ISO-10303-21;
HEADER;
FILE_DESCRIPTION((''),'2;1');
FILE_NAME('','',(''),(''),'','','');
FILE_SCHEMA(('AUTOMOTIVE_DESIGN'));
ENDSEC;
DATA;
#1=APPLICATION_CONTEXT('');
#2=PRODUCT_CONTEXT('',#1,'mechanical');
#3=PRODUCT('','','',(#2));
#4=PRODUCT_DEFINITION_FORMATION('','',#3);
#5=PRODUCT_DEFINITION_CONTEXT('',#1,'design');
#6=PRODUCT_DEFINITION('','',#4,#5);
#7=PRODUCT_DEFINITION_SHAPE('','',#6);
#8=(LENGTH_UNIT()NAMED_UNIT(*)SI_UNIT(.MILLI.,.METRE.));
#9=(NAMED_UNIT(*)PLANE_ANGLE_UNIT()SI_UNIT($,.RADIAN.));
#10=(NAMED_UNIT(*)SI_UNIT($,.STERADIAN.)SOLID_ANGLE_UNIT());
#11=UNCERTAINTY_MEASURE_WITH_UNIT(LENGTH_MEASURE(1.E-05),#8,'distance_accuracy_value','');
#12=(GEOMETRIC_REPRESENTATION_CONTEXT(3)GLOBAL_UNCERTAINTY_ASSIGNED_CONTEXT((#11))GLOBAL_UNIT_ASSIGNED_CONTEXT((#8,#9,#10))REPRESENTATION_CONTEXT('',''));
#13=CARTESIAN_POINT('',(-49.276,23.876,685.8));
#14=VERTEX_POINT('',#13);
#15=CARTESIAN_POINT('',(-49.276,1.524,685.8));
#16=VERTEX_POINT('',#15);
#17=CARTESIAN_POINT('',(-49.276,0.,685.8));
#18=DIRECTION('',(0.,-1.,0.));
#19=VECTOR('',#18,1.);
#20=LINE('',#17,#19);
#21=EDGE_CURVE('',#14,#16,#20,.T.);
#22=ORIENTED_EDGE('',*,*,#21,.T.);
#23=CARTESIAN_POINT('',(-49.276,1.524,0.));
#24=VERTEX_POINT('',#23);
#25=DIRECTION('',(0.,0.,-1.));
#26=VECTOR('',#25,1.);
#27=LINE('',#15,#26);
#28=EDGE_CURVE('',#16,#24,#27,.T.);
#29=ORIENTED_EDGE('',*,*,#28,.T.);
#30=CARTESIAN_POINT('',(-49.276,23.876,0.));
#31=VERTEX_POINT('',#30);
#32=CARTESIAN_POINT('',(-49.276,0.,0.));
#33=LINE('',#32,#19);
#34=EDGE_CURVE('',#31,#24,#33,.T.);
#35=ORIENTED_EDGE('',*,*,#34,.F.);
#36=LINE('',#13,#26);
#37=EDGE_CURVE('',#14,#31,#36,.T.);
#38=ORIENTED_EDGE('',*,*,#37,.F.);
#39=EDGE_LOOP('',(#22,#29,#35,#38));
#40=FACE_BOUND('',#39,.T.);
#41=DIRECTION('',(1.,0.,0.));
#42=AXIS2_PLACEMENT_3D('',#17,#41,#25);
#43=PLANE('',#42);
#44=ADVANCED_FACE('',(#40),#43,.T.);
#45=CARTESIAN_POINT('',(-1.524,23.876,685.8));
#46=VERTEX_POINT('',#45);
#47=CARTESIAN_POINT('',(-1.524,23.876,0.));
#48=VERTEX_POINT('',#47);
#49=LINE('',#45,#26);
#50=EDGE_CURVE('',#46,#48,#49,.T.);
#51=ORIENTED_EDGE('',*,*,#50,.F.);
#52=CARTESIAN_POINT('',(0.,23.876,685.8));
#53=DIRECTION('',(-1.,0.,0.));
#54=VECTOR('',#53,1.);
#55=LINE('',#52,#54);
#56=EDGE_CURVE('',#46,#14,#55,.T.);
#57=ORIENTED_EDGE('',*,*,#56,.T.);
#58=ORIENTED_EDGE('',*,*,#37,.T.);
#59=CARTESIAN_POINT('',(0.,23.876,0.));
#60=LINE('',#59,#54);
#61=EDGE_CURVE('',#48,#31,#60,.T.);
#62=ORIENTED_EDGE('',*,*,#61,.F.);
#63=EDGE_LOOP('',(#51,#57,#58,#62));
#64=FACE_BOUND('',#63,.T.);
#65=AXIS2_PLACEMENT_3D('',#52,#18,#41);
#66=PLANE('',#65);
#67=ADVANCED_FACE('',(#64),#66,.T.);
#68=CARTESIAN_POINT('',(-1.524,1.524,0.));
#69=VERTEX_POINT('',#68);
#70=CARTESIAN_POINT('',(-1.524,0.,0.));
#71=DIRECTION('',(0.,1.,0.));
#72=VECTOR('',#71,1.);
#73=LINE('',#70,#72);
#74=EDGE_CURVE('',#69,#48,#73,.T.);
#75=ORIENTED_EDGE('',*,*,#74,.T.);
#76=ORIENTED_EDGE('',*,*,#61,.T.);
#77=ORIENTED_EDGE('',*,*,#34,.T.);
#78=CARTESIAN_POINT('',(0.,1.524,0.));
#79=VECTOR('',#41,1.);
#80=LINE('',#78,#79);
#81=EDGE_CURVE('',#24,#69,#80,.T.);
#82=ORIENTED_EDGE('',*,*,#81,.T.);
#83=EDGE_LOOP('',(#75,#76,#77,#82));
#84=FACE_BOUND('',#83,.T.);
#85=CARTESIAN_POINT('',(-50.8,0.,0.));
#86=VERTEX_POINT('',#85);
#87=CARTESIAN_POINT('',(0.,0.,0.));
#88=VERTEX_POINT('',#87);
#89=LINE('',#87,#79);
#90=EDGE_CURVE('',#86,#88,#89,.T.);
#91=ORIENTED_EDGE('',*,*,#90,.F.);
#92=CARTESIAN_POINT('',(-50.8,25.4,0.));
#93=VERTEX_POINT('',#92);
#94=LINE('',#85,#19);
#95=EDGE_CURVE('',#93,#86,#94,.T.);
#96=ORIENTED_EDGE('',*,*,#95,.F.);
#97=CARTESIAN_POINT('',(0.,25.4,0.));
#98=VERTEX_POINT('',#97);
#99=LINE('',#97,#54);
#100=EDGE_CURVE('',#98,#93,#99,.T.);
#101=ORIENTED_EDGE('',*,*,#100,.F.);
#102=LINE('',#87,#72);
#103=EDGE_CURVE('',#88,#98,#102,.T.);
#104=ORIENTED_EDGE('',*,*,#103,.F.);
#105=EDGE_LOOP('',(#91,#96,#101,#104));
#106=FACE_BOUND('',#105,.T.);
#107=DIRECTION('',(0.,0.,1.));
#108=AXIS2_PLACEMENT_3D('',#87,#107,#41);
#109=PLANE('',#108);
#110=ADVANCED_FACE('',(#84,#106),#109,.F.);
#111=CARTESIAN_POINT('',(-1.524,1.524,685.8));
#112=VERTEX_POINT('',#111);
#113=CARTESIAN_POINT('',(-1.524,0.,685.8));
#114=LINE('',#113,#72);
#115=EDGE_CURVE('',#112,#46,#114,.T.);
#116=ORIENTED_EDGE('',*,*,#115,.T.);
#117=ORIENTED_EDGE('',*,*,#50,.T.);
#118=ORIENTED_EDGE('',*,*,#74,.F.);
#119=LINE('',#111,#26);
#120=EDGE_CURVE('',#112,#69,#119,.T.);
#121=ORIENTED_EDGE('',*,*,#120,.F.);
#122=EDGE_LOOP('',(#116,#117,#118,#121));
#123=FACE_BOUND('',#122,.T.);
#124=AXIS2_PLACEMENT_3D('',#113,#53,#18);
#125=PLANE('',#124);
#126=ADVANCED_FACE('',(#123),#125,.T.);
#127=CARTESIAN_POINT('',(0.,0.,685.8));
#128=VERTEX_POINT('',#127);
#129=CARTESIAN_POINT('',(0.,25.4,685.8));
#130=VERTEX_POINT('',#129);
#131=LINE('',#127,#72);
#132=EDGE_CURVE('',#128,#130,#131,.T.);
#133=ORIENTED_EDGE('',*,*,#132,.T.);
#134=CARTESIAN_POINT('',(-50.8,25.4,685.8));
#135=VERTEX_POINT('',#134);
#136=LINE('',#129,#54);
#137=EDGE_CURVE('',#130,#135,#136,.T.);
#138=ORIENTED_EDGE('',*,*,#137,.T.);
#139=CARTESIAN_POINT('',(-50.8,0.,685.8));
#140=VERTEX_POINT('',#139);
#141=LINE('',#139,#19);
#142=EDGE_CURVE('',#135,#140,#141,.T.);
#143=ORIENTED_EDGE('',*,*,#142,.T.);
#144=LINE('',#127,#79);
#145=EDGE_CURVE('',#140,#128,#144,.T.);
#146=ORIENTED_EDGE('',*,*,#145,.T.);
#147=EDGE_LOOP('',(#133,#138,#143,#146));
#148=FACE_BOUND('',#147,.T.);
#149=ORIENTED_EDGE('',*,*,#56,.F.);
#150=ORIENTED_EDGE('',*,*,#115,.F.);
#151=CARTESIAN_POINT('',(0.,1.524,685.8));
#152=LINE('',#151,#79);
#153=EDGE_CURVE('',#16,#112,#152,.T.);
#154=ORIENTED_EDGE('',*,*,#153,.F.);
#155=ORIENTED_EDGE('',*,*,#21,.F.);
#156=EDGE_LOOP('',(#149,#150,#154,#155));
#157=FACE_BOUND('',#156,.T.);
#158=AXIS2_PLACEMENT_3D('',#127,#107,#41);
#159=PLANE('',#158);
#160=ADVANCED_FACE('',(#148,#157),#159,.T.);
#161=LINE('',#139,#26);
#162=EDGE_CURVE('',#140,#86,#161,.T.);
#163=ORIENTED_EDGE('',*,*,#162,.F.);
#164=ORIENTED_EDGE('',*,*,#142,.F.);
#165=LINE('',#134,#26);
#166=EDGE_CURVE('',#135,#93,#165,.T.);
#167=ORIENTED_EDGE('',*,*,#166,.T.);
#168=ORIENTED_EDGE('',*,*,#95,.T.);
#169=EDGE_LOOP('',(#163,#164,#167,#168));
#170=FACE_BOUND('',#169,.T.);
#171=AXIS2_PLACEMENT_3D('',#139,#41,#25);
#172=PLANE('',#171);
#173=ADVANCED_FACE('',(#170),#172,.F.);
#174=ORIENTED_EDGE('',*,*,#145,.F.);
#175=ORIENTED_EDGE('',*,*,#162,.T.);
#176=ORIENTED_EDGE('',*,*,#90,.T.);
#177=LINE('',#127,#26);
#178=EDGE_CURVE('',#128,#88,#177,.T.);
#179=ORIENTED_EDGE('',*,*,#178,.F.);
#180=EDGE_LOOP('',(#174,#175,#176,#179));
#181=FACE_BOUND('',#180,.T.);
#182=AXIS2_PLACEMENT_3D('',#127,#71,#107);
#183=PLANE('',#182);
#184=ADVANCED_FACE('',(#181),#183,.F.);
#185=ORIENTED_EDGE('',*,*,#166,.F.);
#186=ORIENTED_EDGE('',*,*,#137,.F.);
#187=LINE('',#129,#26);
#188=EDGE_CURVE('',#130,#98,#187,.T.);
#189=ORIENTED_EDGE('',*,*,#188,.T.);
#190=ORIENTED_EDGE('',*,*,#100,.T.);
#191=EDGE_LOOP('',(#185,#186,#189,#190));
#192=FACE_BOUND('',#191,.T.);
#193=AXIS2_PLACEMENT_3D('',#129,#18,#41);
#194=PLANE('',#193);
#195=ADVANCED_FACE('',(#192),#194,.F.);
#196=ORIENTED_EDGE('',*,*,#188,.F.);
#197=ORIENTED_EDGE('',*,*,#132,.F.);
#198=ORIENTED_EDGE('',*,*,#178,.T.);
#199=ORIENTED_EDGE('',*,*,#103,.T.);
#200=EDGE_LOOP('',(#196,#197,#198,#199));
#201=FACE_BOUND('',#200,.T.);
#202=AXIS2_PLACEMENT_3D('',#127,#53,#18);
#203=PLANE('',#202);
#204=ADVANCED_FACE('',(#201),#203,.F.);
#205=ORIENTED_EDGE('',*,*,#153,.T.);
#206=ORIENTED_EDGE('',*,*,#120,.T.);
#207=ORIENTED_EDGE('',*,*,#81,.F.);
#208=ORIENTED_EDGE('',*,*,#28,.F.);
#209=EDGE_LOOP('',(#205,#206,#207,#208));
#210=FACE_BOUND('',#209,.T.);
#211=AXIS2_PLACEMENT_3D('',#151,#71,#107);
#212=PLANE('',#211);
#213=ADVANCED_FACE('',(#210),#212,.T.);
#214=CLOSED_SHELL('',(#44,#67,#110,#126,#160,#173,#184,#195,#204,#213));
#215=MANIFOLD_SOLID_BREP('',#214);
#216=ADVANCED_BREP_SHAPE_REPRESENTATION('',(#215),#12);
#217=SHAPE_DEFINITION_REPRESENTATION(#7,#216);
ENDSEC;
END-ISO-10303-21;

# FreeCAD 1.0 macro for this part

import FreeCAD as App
import Part
import Sketcher

V = App.Vector
Q = App.Units.Quantity

doc = App.newDocument("Part")
params = doc.addObject("Spreadsheet::Sheet", "Params")
for row, (alias, value) in enumerate([
    ("sketch1_width", "2 in"),
    ("sketch1_height", "1 in"),
    ("sketch1_width2", "1.88 in"),
    ("sketch1_height2", "0.88 in"),
    ("pad1_length", "27 in"),
], start=1):
    params.set(f"A{row}", alias)
    params.set(f"B{row}", "=" + value)
    params.setAlias(f"B{row}", alias)

body = doc.addObject("PartDesign::Body", "Body")

# Sketch on XY plane
sketch1 = body.newObject("Sketcher::SketchObject", "Sketch")
sketch1.AttachmentSupport = (doc.getObject("XY_Plane"), [""])
sketch1.MapMode = "FlatFace"
sketch1.addGeometry([
    Part.LineSegment(V(-51, 25, 0), V(-51, 0, 0)),  # 0
    Part.LineSegment(V(-51, 0, 0), V(0, 0, 0)),  # 1
    Part.LineSegment(V(0, 0, 0), V(0, 25, 0)),  # 2
    Part.LineSegment(V(0, 25, 0), V(-51, 25, 0)),  # 3
    Part.LineSegment(V(-2, 2, 0), V(-49, 2, 0)),  # 4
    Part.LineSegment(V(-49, 2, 0), V(-49, 24, 0)),  # 5
    Part.LineSegment(V(-49, 24, 0), V(-2, 24, 0)),  # 6
    Part.LineSegment(V(-2, 24, 0), V(-2, 2, 0)),  # 7
], False)
sketch1.addConstraint([
    Sketcher.Constraint("Coincident", 0, 2, 1, 1),
    Sketcher.Constraint("Coincident", 1, 2, 2, 1),
    Sketcher.Constraint("Coincident", 2, 2, 3, 1),
    Sketcher.Constraint("Coincident", 3, 2, 0, 1),
    Sketcher.Constraint("Coincident", 4, 2, 5, 1),
    Sketcher.Constraint("Coincident", 5, 2, 6, 1),
    Sketcher.Constraint("Coincident", 6, 2, 7, 1),
    Sketcher.Constraint("Coincident", 7, 2, 4, 1),
    Sketcher.Constraint("Vertical", 0),
    Sketcher.Constraint("Horizontal", 1),
    Sketcher.Constraint("Vertical", 2),
    Sketcher.Constraint("Horizontal", 3),
    Sketcher.Constraint("Horizontal", 4),
    Sketcher.Constraint("Vertical", 5),
    Sketcher.Constraint("Horizontal", 6),
    Sketcher.Constraint("Vertical", 7),
    Sketcher.Constraint("Coincident", 1, 2, -1, 1),
    Sketcher.Constraint("DistanceX", 1, 1, 1, 2, Q("2 in")),
    Sketcher.Constraint("DistanceY", 0, 2, 0, 1, Q("1 in")),
    Sketcher.Constraint("DistanceX", 4, 2, 4, 1, Q("1.88 in")),
    Sketcher.Constraint("DistanceY", 5, 1, 5, 2, Q("0.88 in")),
    Sketcher.Constraint("DistanceX", 4, 2, -1, 1, Q("1.94 in")),
    Sketcher.Constraint("DistanceY", -1, 1, 4, 2, Q("0.06 in")),
])
sketch1.setExpression("Constraints[17]", "Params.sketch1_width")
sketch1.setExpression("Constraints[18]", "Params.sketch1_height")
sketch1.setExpression("Constraints[19]", "Params.sketch1_width2")
sketch1.setExpression("Constraints[20]", "Params.sketch1_height2")
pad1 = body.newObject("PartDesign::Pad", "Pad")
pad1.Profile = sketch1
pad1.setExpression("Length", "Params.pad1_length")

doc.recompute()
